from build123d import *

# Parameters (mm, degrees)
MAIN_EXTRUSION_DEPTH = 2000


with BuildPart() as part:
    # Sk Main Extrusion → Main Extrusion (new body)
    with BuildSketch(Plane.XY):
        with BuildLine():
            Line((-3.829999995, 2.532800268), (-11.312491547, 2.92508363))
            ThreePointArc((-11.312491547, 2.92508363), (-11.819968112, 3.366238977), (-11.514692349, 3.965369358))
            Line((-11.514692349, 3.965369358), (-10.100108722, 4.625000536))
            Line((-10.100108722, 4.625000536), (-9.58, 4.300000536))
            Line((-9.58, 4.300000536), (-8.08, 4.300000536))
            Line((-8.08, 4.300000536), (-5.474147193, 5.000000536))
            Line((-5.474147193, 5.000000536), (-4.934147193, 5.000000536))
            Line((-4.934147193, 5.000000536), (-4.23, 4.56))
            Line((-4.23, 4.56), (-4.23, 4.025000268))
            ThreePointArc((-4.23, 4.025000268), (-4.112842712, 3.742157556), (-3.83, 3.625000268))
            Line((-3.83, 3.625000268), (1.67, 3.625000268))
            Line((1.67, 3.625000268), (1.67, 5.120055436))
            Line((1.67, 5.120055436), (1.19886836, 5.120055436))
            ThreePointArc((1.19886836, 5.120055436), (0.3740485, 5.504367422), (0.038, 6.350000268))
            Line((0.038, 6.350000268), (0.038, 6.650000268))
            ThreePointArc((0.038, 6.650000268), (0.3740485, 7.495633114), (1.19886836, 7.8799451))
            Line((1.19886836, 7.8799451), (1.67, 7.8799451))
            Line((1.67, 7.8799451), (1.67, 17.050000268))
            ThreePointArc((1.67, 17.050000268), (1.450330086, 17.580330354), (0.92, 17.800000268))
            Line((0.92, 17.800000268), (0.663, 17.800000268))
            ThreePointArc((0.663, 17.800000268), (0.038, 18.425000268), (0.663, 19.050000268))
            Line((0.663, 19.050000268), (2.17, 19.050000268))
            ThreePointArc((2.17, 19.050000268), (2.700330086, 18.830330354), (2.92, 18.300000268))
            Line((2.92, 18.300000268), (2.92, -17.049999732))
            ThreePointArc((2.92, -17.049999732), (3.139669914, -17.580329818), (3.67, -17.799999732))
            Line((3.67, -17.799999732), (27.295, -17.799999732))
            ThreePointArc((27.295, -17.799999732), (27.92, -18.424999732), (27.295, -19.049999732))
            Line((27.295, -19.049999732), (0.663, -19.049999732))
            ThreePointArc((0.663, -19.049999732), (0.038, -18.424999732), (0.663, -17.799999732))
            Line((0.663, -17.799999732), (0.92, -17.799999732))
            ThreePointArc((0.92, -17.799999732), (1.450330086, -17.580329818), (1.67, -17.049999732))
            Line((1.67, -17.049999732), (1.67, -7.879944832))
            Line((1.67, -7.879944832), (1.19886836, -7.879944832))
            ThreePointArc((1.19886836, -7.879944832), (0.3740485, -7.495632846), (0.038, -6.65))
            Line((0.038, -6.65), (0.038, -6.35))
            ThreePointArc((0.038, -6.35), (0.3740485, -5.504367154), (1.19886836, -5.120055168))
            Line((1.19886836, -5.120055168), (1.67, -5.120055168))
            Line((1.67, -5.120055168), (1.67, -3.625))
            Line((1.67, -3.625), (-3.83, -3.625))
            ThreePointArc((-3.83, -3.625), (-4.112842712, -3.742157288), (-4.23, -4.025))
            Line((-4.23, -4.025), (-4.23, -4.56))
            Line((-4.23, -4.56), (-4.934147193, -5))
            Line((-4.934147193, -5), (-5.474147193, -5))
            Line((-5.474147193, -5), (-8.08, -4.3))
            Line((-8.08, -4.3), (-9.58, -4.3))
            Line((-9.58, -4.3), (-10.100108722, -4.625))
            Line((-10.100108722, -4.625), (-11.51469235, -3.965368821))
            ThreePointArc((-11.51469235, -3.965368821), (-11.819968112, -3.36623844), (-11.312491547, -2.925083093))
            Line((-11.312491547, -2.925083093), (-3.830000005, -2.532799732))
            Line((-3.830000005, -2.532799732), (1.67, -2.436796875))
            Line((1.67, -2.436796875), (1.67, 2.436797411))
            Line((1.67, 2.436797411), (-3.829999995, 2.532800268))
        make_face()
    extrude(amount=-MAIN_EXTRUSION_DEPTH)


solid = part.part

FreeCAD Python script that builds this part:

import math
import FreeCAD as App
import Part
import Sketcher
from FreeCAD import Vector
Q = App.Units.Quantity

doc = App.newDocument("Part")
body = doc.addObject("PartDesign::Body", "Body")

# Sketch on XY plane
sketch1 = body.newObject("Sketcher::SketchObject", "Sketch")
sketch1.AttachmentSupport = (doc.getObject("XY_Plane"), [""])
sketch1.MapMode = "FlatFace"
sketch1.addGeometry(Part.LineSegment(Vector(-11.31, 2.93, 0), Vector(-3.83, 2.53, 0)), False)
sketch1.addGeometry(Part.LineSegment(Vector(-3.83, 2.53, 0), Vector(1.67, 2.44, 0)), False)
sketch1.addGeometry(Part.LineSegment(Vector(1.67, 2.44, 0), Vector(1.67, -2.44, 0)), False)
sketch1.addGeometry(Part.LineSegment(Vector(1.67, -2.44, 0), Vector(-3.83, -2.53, 0)), False)
sketch1.addGeometry(Part.LineSegment(Vector(-3.83, -2.53, 0), Vector(-11.31, -2.93, 0)), False)
sketch1.addGeometry(Part.ArcOfCircle(Part.Circle(Vector(-11.28, -3.47, 0), Vector(0, 0, 1), 0.55), math.radians(93), math.radians(245)), False)
sketch1.addGeometry(Part.LineSegment(Vector(-11.51, -3.97, 0), Vector(-10.1, -4.62, 0)), False)
sketch1.addGeometry(Part.LineSegment(Vector(-10.1, -4.62, 0), Vector(-9.58, -4.3, 0)), False)
sketch1.addGeometry(Part.LineSegment(Vector(-9.58, -4.3, 0), Vector(-8.08, -4.3, 0)), False)
sketch1.addGeometry(Part.LineSegment(Vector(-8.08, -4.3, 0), Vector(-5.47, -5, 0)), False)
sketch1.addGeometry(Part.LineSegment(Vector(-5.47, -5, 0), Vector(-4.93, -5, 0)), False)
sketch1.addGeometry(Part.LineSegment(Vector(-4.93, -5, 0), Vector(-4.23, -4.56, 0)), False)
sketch1.addGeometry(Part.LineSegment(Vector(-4.23, -4.56, 0), Vector(-4.23, -4.03, 0)), False)
sketch1.addGeometry(Part.ArcOfCircle(Part.Circle(Vector(-3.83, -4.03, 0), Vector(0, 0, 1), 0.4), math.radians(90), math.radians(180)), False)
sketch1.addGeometry(Part.LineSegment(Vector(-3.83, -3.62, 0), Vector(1.67, -3.62, 0)), False)
sketch1.addGeometry(Part.LineSegment(Vector(1.67, -3.62, 0), Vector(1.67, -5.12, 0)), False)
sketch1.addGeometry(Part.LineSegment(Vector(1.67, -5.12, 0), Vector(1.2, -5.12, 0)), False)
sketch1.addGeometry(Part.ArcOfCircle(Part.Circle(Vector(1.27, -6.35, 0), Vector(0, 0, 1), 1.23), math.radians(93), math.radians(180)), False)
sketch1.addGeometry(Part.LineSegment(Vector(0.04, -6.35, 0), Vector(0.04, -6.65, 0)), False)
sketch1.addGeometry(Part.ArcOfCircle(Part.Circle(Vector(1.27, -6.65, 0), Vector(0, 0, 1), 1.23), math.radians(180), math.radians(267)), False)
sketch1.addGeometry(Part.LineSegment(Vector(1.2, -7.88, 0), Vector(1.67, -7.88, 0)), False)
sketch1.addGeometry(Part.LineSegment(Vector(1.67, -7.88, 0), Vector(1.67, -17.05, 0)), False)
sketch1.addGeometry(Part.ArcOfCircle(Part.Circle(Vector(0.92, -17.05, 0), Vector(0, 0, 1), 0.75), math.radians(-90), math.radians(0)), False)
sketch1.addGeometry(Part.LineSegment(Vector(0.92, -17.8, 0), Vector(0.66, -17.8, 0)), False)
sketch1.addGeometry(Part.ArcOfCircle(Part.Circle(Vector(0.66, -18.42, 0), Vector(0, 0, 1), 0.62), math.radians(90), math.radians(270)), False)
sketch1.addGeometry(Part.LineSegment(Vector(0.66, -19.05, 0), Vector(27.3, -19.05, 0)), False)
sketch1.addGeometry(Part.ArcOfCircle(Part.Circle(Vector(27.3, -18.42, 0), Vector(0, 0, 1), 0.62), math.radians(-90), math.radians(90)), False)
sketch1.addGeometry(Part.LineSegment(Vector(27.3, -17.8, 0), Vector(3.67, -17.8, 0)), False)
sketch1.addGeometry(Part.ArcOfCircle(Part.Circle(Vector(3.67, -17.05, 0), Vector(0, 0, 1), 0.75), math.radians(180), math.radians(270)), False)
sketch1.addGeometry(Part.LineSegment(Vector(2.92, -17.05, 0), Vector(2.92, 18.3, 0)), False)
sketch1.addGeometry(Part.ArcOfCircle(Part.Circle(Vector(2.17, 18.3, 0), Vector(0, 0, 1), 0.75), math.radians(0), math.radians(90)), False)
sketch1.addGeometry(Part.LineSegment(Vector(2.17, 19.05, 0), Vector(0.66, 19.05, 0)), False)
sketch1.addGeometry(Part.ArcOfCircle(Part.Circle(Vector(0.66, 18.43, 0), Vector(0, 0, 1), 0.62), math.radians(90), math.radians(270)), False)
sketch1.addGeometry(Part.LineSegment(Vector(0.66, 17.8, 0), Vector(0.92, 17.8, 0)), False)
sketch1.addGeometry(Part.ArcOfCircle(Part.Circle(Vector(0.92, 17.05, 0), Vector(0, 0, 1), 0.75), math.radians(0), math.radians(90)), False)
sketch1.addGeometry(Part.LineSegment(Vector(1.67, 17.05, 0), Vector(1.67, 7.88, 0)), False)
sketch1.addGeometry(Part.LineSegment(Vector(1.67, 7.88, 0), Vector(1.2, 7.88, 0)), False)
sketch1.addGeometry(Part.ArcOfCircle(Part.Circle(Vector(1.27, 6.65, 0), Vector(0, 0, 1), 1.23), math.radians(93), math.radians(180)), False)
sketch1.addGeometry(Part.LineSegment(Vector(0.04, 6.65, 0), Vector(0.04, 6.35, 0)), False)
sketch1.addGeometry(Part.ArcOfCircle(Part.Circle(Vector(1.27, 6.35, 0), Vector(0, 0, 1), 1.23), math.radians(180), math.radians(267)), False)
sketch1.addGeometry(Part.LineSegment(Vector(1.2, 5.12, 0), Vector(1.67, 5.12, 0)), False)
sketch1.addGeometry(Part.LineSegment(Vector(1.67, 5.12, 0), Vector(1.67, 3.63, 0)), False)
sketch1.addGeometry(Part.LineSegment(Vector(1.67, 3.63, 0), Vector(-3.83, 3.63, 0)), False)
sketch1.addGeometry(Part.ArcOfCircle(Part.Circle(Vector(-3.83, 4.03, 0), Vector(0, 0, 1), 0.4), math.radians(-180), math.radians(-90)), False)
sketch1.addGeometry(Part.LineSegment(Vector(-4.23, 4.03, 0), Vector(-4.23, 4.56, 0)), False)
sketch1.addGeometry(Part.LineSegment(Vector(-4.23, 4.56, 0), Vector(-4.93, 5, 0)), False)
sketch1.addGeometry(Part.LineSegment(Vector(-4.93, 5, 0), Vector(-5.47, 5, 0)), False)
sketch1.addGeometry(Part.LineSegment(Vector(-5.47, 5, 0), Vector(-8.08, 4.3, 0)), False)
sketch1.addGeometry(Part.LineSegment(Vector(-8.08, 4.3, 0), Vector(-9.58, 4.3, 0)), False)
sketch1.addGeometry(Part.LineSegment(Vector(-9.58, 4.3, 0), Vector(-10.1, 4.63, 0)), False)
sketch1.addGeometry(Part.LineSegment(Vector(-10.1, 4.63, 0), Vector(-11.51, 3.97, 0)), False)
sketch1.addGeometry(Part.ArcOfCircle(Part.Circle(Vector(-11.28, 3.47, 0), Vector(0, 0, 1), 0.55), math.radians(115), math.radians(267)), False)
sketch1.addConstraint(Sketcher.Constraint("Coincident", 0, 2, 1, 1))
sketch1.addConstraint(Sketcher.Constraint("Coincident", 1, 2, 2, 1))
sketch1.addConstraint(Sketcher.Constraint("Coincident", 2, 2, 3, 1))
sketch1.addConstraint(Sketcher.Constraint("Coincident", 3, 2, 4, 1))
sketch1.addConstraint(Sketcher.Constraint("Tangent", 4, 2, 5, 1))
sketch1.addConstraint(Sketcher.Constraint("Tangent", 5, 2, 6, 1))
sketch1.addConstraint(Sketcher.Constraint("Coincident", 6, 2, 7, 1))
sketch1.addConstraint(Sketcher.Constraint("Coincident", 7, 2, 8, 1))
sketch1.addConstraint(Sketcher.Constraint("Coincident", 8, 2, 9, 1))
sketch1.addConstraint(Sketcher.Constraint("Coincident", 9, 2, 10, 1))
sketch1.addConstraint(Sketcher.Constraint("Coincident", 10, 2, 11, 1))
sketch1.addConstraint(Sketcher.Constraint("Coincident", 11, 2, 12, 1))
sketch1.addConstraint(Sketcher.Constraint("Tangent", 12, 2, 13, 2))
sketch1.addConstraint(Sketcher.Constraint("Tangent", 13, 1, 14, 1))
sketch1.addConstraint(Sketcher.Constraint("Coincident", 14, 2, 15, 1))
sketch1.addConstraint(Sketcher.Constraint("Coincident", 15, 2, 16, 1))
sketch1.addConstraint(Sketcher.Constraint("Coincident", 16, 2, 17, 1))
sketch1.addConstraint(Sketcher.Constraint("Tangent", 17, 2, 18, 1))
sketch1.addConstraint(Sketcher.Constraint("Tangent", 18, 2, 19, 1))
sketch1.addConstraint(Sketcher.Constraint("Coincident", 19, 2, 20, 1))
sketch1.addConstraint(Sketcher.Constraint("Coincident", 20, 2, 21, 1))
sketch1.addConstraint(Sketcher.Constraint("Tangent", 21, 2, 22, 2))
sketch1.addConstraint(Sketcher.Constraint("Tangent", 22, 1, 23, 1))
sketch1.addConstraint(Sketcher.Constraint("Tangent", 23, 2, 24, 1))
sketch1.addConstraint(Sketcher.Constraint("Tangent", 24, 2, 25, 1))
sketch1.addConstraint(Sketcher.Constraint("Tangent", 25, 2, 26, 1))
sketch1.addConstraint(Sketcher.Constraint("Tangent", 26, 2, 27, 1))
sketch1.addConstraint(Sketcher.Constraint("Tangent", 27, 2, 28, 2))
sketch1.addConstraint(Sketcher.Constraint("Tangent", 28, 1, 29, 1))
sketch1.addConstraint(Sketcher.Constraint("Tangent", 29, 2, 30, 1))
sketch1.addConstraint(Sketcher.Constraint("Tangent", 30, 2, 31, 1))
sketch1.addConstraint(Sketcher.Constraint("Tangent", 31, 2, 32, 1))
sketch1.addConstraint(Sketcher.Constraint("Tangent", 32, 2, 33, 1))
sketch1.addConstraint(Sketcher.Constraint("Tangent", 33, 2, 34, 2))
sketch1.addConstraint(Sketcher.Constraint("Tangent", 34, 1, 35, 1))
sketch1.addConstraint(Sketcher.Constraint("Coincident", 35, 2, 36, 1))
sketch1.addConstraint(Sketcher.Constraint("Coincident", 36, 2, 37, 1))
sketch1.addConstraint(Sketcher.Constraint("Tangent", 37, 2, 38, 1))
sketch1.addConstraint(Sketcher.Constraint("Tangent", 38, 2, 39, 1))
sketch1.addConstraint(Sketcher.Constraint("Coincident", 39, 2, 40, 1))
sketch1.addConstraint(Sketcher.Constraint("Coincident", 40, 2, 41, 1))
sketch1.addConstraint(Sketcher.Constraint("Coincident", 41, 2, 42, 1))
sketch1.addConstraint(Sketcher.Constraint("Tangent", 42, 2, 43, 2))
sketch1.addConstraint(Sketcher.Constraint("Tangent", 43, 1, 44, 1))
sketch1.addConstraint(Sketcher.Constraint("Coincident", 44, 2, 45, 1))
sketch1.addConstraint(Sketcher.Constraint("Coincident", 45, 2, 46, 1))
sketch1.addConstraint(Sketcher.Constraint("Coincident", 46, 2, 47, 1))
sketch1.addConstraint(Sketcher.Constraint("Coincident", 47, 2, 48, 1))
sketch1.addConstraint(Sketcher.Constraint("Coincident", 48, 2, 49, 1))
sketch1.addConstraint(Sketcher.Constraint("Coincident", 49, 2, 50, 1))
sketch1.addConstraint(Sketcher.Constraint("Tangent", 50, 2, 51, 1))
sketch1.addConstraint(Sketcher.Constraint("Tangent", 51, 2, 0, 1))
sketch1.addConstraint(Sketcher.Constraint("Vertical", 2))
sketch1.addConstraint(Sketcher.Constraint("Horizontal", 8))
sketch1.addConstraint(Sketcher.Constraint("Horizontal", 10))
sketch1.addConstraint(Sketcher.Constraint("Vertical", 12))
sketch1.addConstraint(Sketcher.Constraint("Horizontal", 14))
sketch1.addConstraint(Sketcher.Constraint("Vertical", 15))
sketch1.addConstraint(Sketcher.Constraint("Horizontal", 16))
sketch1.addConstraint(Sketcher.Constraint("Vertical", 18))
sketch1.addConstraint(Sketcher.Constraint("Horizontal", 20))
sketch1.addConstraint(Sketcher.Constraint("Vertical", 21))
sketch1.addConstraint(Sketcher.Constraint("Horizontal", 23))
sketch1.addConstraint(Sketcher.Constraint("Horizontal", 25))
sketch1.addConstraint(Sketcher.Constraint("Horizontal", 27))
sketch1.addConstraint(Sketcher.Constraint("Vertical", 29))
sketch1.addConstraint(Sketcher.Constraint("Horizontal", 31))
sketch1.addConstraint(Sketcher.Constraint("Horizontal", 33))
sketch1.addConstraint(Sketcher.Constraint("Vertical", 35))
sketch1.addConstraint(Sketcher.Constraint("Horizontal", 36))
sketch1.addConstraint(Sketcher.Constraint("Vertical", 38))
sketch1.addConstraint(Sketcher.Constraint("Horizontal", 40))
sketch1.addConstraint(Sketcher.Constraint("Vertical", 41))
sketch1.addConstraint(Sketcher.Constraint("Horizontal", 42))
sketch1.addConstraint(Sketcher.Constraint("Vertical", 44))
sketch1.addConstraint(Sketcher.Constraint("Horizontal", 46))
sketch1.addConstraint(Sketcher.Constraint("Horizontal", 48))
sketch1.addConstraint(Sketcher.Constraint("Equal", 17, 19))
sketch1.addConstraint(Sketcher.Constraint("Equal", 24, 26))
sketch1.addConstraint(Sketcher.Constraint("Equal", 22, 28))
sketch1.addConstraint(Sketcher.Constraint("Equal", 28, 30))
sketch1.addConstraint(Sketcher.Constraint("Equal", 26, 32))
sketch1.addConstraint(Sketcher.Constraint("Equal", 30, 34))
sketch1.addConstraint(Sketcher.Constraint("Equal", 19, 37))
sketch1.addConstraint(Sketcher.Constraint("Equal", 37, 39))
sketch1.addConstraint(Sketcher.Constraint("Equal", 13, 43))
sketch1.addConstraint(Sketcher.Constraint("Equal", 5, 51))
sketch1.addConstraint(Sketcher.Constraint("Symmetric", 24, 3, 32, 3, -1))
sketch1.addConstraint(Sketcher.Constraint("Symmetric", 19, 3, 37, 3, -1))
sketch1.addConstraint(Sketcher.Constraint("Symmetric", 13, 3, 43, 3, -1))
sketch1.addConstraint(Sketcher.Constraint("Symmetric", 5, 3, 51, 3, -1))
sketch1.addConstraint(Sketcher.Constraint("Symmetric", 0, 2, 3, 2, -1))
sketch1.addConstraint(Sketcher.Constraint("Symmetric", 20, 2, 35, 2, -1))
sketch1.addConstraint(Sketcher.Constraint("Symmetric", 16, 2, 39, 2, -1))
sketch1.addConstraint(Sketcher.Constraint("Symmetric", 10, 2, 45, 2, -1))
sketch1.addConstraint(Sketcher.Constraint("Symmetric", 8, 2, 47, 2, -1))
sketch1.addConstraint(Sketcher.Constraint("Symmetric", 6, 2, 49, 2, -1))
sketch1.addConstraint(Sketcher.Constraint("Parallel", 7, 11))
sketch1.addConstraint(Sketcher.Constraint("Parallel", 45, 49))
sketch1.addConstraint(Sketcher.Constraint("Vertical", 43, 3, 0, 2))
sketch1.addConstraint(Sketcher.Constraint("Vertical", 2, 2, 14, 2))
sketch1.addConstraint(Sketcher.Constraint("Vertical", 16, 2, 19, 2))
sketch1.addConstraint(Sketcher.Constraint("Vertical", 15, 2, 20, 2))
sketch1.addConstraint(Sketcher.Constraint("Vertical", 35, 2, 40, 2))
sketch1.addConstraint(Sketcher.Constraint("Vertical", 9, 2, 46, 2))
sketch1.addConstraint(Sketcher.Constraint("Vertical", 7, 2, 48, 2))
sketch1.addConstraint(Sketcher.Constraint("Equal", 1, 3))
sketch1.addConstraint(Sketcher.Constraint("Radius", 13, 0.4))
sketch1.addConstraint(Sketcher.Constraint("Angle", 1, Q("-1 deg")))
sketch1.addConstraint(Sketcher.Constraint("Angle", 6, Q("-25 deg")))
sketch1.addConstraint(Sketcher.Constraint("Angle", 7, Q("32 deg")))
sketch1.addConstraint(Sketcher.Constraint("Radius", 22, 0.75))
sketch1.addConstraint(Sketcher.Constraint("DistanceX", 8, 1, 8, 2, 1.5))
sketch1.addConstraint(Sketcher.Constraint("DistanceX", 14, 1, 14, 2, 5.5))
sketch1.addConstraint(Sketcher.Constraint("DistanceY", 18, 2, 18, 1, 0.3))
sketch1.addConstraint(Sketcher.Constraint("DistanceY", 9, 2, -1, 1, 5.0))
sketch1.addConstraint(Sketcher.Constraint("Radius", 17, 1.232))
sketch1.addConstraint(Sketcher.Constraint("Radius", 24, 0.625))
sketch1.addConstraint(Sketcher.Constraint("DistanceX", 10, 1, 10, 2, 0.54))
sketch1.addConstraint(Sketcher.Constraint("DistanceY", 29, 1, 29, 2, 35.35))
sketch1.addConstraint(Sketcher.Constraint("DistanceY", 7, 2, -1, 1, 4.3))
sketch1.addConstraint(Sketcher.Constraint("Radius", 5, 0.5461))
sketch1.addConstraint(Sketcher.Constraint("DistanceX", 23, 2, 23, 1, 0.257))
sketch1.addConstraint(Sketcher.Constraint("DistanceX", 25, 1, 25, 2, 26.632))
sketch1.addConstraint(Sketcher.Constraint("DistanceX", 27, 2, 27, 1, 23.625))
sketch1.addConstraint(Sketcher.Constraint("DistanceY", 12, 1, 12, 2, 0.535))
sketch1.addConstraint(Sketcher.Constraint("DistanceX", 13, 3, -1, 1, 3.83))
sketch1.addConstraint(Sketcher.Constraint("DistanceX", -1, 1, 17, 3, 1.27))
sketch1.addConstraint(Sketcher.Constraint("DistanceY", 17, 3, -1, 1, 6.35))
sketch1.addConstraint(Sketcher.Constraint("DistanceX", 7, 2, -1, 1, 9.58))
sketch1.addConstraint(Sketcher.Constraint("DistanceY", 11, 2, -1, 1, 4.56))
sketch1.addConstraint(Sketcher.Constraint("DistanceY", 6, 2, -1, 1, 4.625))
sketch1.addConstraint(Sketcher.Constraint("DistanceX", 16, 2, 16, 1, 0.471132))
sketch1.addConstraint(Sketcher.Constraint("DistanceX", 5, 3, -1, 1, 11.283901))
sketch1.addConstraint(Sketcher.Constraint("DistanceY", -1, 1, 0, 2, 2.5328))
pad1 = body.newObject("PartDesign::Pad", "Pad")
pad1.Profile = sketch1
pad1.Length = 2000
pad1.Reversed = True

doc.recompute()
